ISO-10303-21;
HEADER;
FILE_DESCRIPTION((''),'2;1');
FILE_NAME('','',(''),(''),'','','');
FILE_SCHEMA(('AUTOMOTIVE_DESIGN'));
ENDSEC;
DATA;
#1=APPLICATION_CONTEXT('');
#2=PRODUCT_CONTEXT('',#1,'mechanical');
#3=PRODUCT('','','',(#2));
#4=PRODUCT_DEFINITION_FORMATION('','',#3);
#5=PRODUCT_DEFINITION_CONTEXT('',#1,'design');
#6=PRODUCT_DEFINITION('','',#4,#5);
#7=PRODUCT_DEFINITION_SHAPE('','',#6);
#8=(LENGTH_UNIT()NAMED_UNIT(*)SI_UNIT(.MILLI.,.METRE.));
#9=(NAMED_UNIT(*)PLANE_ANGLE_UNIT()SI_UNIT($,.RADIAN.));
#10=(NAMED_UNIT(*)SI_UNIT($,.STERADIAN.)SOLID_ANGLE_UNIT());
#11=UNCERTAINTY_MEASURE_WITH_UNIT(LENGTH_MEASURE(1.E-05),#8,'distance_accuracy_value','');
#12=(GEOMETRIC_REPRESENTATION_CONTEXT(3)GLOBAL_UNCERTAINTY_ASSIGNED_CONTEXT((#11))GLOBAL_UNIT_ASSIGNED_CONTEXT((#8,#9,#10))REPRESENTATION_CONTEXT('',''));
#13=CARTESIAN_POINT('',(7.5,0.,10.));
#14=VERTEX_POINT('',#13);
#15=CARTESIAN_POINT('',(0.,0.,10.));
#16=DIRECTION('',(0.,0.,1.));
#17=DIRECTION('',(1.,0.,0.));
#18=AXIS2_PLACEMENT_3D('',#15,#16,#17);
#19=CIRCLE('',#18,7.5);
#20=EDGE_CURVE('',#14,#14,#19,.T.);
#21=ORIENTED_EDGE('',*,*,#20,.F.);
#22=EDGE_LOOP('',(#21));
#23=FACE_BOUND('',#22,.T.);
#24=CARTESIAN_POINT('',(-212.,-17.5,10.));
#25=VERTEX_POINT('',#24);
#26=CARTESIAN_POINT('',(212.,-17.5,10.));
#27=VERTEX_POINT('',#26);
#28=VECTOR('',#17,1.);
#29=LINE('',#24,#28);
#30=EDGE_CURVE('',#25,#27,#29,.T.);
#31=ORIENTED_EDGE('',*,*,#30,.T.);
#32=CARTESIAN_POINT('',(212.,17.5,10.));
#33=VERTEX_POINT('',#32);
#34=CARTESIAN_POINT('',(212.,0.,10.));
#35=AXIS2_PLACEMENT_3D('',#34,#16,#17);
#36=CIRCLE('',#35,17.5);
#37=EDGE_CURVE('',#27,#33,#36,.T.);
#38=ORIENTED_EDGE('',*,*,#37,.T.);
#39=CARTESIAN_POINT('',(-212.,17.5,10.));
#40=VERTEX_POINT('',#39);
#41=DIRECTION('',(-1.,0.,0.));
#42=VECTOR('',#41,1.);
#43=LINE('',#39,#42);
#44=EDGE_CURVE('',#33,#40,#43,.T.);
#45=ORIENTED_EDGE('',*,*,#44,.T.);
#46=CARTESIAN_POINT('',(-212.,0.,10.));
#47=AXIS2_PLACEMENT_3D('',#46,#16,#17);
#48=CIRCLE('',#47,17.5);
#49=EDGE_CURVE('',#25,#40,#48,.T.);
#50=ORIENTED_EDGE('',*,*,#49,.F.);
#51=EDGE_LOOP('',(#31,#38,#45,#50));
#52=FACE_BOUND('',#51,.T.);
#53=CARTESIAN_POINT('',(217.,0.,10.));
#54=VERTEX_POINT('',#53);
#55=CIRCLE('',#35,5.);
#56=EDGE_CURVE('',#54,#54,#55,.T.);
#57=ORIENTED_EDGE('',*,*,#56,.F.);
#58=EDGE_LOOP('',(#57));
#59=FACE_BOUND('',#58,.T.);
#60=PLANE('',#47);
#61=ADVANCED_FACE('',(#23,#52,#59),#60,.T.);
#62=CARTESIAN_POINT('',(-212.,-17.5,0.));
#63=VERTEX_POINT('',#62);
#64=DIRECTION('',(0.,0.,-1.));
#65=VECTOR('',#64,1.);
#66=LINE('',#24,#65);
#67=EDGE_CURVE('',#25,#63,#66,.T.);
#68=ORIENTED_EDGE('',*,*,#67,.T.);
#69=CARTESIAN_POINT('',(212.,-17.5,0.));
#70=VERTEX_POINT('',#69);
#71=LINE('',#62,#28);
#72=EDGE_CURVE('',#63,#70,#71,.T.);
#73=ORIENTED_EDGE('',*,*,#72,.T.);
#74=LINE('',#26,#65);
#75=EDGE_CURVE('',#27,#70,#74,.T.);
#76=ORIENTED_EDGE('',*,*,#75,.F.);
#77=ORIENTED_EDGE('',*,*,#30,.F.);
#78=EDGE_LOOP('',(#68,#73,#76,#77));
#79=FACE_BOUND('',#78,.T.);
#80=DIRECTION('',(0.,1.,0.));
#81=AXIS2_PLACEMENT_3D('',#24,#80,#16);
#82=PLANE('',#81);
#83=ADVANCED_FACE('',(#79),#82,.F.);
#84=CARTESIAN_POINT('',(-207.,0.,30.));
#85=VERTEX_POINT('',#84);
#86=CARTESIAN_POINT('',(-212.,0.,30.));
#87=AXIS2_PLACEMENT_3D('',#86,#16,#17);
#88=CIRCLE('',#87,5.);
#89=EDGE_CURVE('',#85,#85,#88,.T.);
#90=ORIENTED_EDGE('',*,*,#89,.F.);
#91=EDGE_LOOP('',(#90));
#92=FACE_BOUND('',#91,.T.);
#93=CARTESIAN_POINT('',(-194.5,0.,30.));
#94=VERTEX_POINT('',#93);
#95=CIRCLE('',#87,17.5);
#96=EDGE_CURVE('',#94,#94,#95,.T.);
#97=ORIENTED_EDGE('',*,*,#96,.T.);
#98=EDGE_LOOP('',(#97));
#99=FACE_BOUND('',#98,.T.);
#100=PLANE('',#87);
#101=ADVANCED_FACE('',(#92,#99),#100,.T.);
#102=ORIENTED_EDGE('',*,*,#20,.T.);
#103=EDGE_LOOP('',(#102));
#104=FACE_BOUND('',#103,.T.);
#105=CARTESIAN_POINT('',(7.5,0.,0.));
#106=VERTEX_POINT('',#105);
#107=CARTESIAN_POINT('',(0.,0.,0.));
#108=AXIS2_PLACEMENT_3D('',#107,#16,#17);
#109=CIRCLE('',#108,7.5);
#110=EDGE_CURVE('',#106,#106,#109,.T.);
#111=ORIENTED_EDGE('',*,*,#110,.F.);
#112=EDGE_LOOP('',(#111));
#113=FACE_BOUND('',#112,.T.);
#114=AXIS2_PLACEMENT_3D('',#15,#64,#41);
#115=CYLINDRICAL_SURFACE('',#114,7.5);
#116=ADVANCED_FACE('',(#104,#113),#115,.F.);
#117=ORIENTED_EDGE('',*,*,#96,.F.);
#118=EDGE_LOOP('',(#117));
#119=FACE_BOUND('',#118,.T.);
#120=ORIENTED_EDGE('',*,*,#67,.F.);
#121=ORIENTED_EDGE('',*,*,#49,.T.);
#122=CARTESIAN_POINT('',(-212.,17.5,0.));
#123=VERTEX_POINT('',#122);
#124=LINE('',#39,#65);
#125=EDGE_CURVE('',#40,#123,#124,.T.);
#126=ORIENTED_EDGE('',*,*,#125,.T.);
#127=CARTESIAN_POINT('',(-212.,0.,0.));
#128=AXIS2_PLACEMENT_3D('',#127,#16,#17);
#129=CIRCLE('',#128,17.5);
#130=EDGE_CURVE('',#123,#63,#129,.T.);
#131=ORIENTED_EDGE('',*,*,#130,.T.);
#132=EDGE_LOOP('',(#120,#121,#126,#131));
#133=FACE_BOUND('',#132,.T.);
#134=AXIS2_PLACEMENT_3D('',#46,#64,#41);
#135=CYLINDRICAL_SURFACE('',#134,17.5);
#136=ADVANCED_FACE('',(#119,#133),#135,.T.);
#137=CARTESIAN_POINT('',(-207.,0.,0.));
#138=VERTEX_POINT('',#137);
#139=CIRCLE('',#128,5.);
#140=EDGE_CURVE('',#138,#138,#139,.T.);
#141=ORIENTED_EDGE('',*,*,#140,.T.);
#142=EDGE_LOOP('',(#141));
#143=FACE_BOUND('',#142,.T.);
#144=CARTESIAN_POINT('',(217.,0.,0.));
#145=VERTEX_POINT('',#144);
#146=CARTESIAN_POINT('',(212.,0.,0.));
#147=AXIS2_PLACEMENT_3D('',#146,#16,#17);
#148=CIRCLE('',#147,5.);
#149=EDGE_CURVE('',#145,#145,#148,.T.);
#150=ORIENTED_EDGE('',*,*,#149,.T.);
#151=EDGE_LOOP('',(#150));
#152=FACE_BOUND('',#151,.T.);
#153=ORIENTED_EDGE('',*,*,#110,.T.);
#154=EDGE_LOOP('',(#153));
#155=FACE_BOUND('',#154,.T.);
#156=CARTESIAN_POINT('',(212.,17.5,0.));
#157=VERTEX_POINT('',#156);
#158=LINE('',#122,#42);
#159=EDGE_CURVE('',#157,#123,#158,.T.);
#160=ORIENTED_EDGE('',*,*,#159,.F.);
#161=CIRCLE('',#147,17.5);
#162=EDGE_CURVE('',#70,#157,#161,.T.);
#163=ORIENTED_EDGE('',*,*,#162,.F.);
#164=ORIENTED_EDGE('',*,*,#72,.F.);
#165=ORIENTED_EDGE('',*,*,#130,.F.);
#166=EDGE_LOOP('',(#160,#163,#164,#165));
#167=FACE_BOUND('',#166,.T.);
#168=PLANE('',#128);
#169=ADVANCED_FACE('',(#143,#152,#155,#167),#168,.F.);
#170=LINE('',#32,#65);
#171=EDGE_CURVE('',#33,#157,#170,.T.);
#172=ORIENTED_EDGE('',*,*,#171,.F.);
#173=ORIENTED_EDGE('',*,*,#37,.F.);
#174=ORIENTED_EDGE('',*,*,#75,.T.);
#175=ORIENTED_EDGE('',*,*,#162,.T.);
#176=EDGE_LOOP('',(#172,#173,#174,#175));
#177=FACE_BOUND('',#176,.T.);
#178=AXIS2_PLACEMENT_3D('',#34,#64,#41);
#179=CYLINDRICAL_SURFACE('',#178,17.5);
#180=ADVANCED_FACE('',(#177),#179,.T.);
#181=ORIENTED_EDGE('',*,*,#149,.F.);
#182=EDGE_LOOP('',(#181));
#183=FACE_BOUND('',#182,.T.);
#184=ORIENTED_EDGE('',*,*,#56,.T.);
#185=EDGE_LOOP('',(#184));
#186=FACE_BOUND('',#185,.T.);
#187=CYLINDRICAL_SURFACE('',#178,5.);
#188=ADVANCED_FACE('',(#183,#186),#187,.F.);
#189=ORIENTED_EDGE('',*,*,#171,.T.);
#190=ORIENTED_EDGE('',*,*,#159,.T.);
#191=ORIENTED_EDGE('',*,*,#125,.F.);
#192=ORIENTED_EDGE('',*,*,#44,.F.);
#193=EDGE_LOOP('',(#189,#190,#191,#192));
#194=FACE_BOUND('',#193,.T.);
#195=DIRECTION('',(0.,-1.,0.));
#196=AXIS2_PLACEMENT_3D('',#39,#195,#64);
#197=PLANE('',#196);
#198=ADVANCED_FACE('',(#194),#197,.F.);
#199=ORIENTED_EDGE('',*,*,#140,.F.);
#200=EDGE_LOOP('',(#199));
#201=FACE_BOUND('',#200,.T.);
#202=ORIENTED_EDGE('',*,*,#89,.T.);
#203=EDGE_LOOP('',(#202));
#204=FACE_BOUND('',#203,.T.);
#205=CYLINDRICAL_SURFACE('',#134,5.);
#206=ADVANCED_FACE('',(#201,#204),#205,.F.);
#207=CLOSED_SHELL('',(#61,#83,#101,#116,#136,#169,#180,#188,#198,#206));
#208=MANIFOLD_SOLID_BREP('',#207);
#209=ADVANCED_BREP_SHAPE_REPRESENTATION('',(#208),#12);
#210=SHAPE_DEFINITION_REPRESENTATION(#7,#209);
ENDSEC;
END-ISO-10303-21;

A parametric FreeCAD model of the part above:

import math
import FreeCAD as App
import Part
import Sketcher
from FreeCAD import Vector
Q = App.Units.Quantity

doc = App.newDocument("Part")
params = doc.addObject("Spreadsheet::Sheet", "Params")
for row, (alias, value) in enumerate([
    ("sketch1_diameter", "10 mm"),
    ("sketch1_diameter2", "15 mm"),
    ("sketch1_radius", "17.5 mm"),
    ("sketch1_width", "424 mm"),
    ("pad1_length", "10 mm"),
    ("sketch2_diameter", "35 mm"),
    ("sketch2_diameter2", "10 mm"),
    ("pad2_length", "20 mm"),
], start=1):
    params.set(f"A{row}", alias)
    params.set(f"B{row}", "=" + value)
    params.setAlias(f"B{row}", alias)

body = doc.addObject("PartDesign::Body", "Body")

sketch1 = body.newObject("Sketcher::SketchObject", "Sketch")
sketch1.AttachmentSupport = (doc.getObject("XY_Plane"), [""])
sketch1.MapMode = "FlatFace"
sketch1.addGeometry(Part.LineSegment(Vector(212, 18, 0), Vector(-212, 18, 0)), False)
sketch1.addGeometry(Part.ArcOfCircle(Part.Circle(Vector(-212, 0, 0), Vector(0, 0, 1), 18), math.radians(90), math.radians(270)), False)
sketch1.addGeometry(Part.LineSegment(Vector(-212, -18, 0), Vector(212, -18, 0)), False)
sketch1.addGeometry(Part.ArcOfCircle(Part.Circle(Vector(212, 0, 0), Vector(0, 0, 1), 18), math.radians(-90), math.radians(90)), False)
sketch1.addGeometry(Part.Circle(Vector(212, 0, 0), Vector(0, 0, 1), 5), False)
sketch1.addGeometry(Part.Circle(Vector(0, 0, 0), Vector(0, 0, 1), 8), False)
sketch1.addGeometry(Part.Circle(Vector(-212, 0, 0), Vector(0, 0, 1), 5), False)
sketch1.addConstraint(Sketcher.Constraint("Tangent", 0, 2, 1, 1))
sketch1.addConstraint(Sketcher.Constraint("Tangent", 1, 2, 2, 1))
sketch1.addConstraint(Sketcher.Constraint("Tangent", 2, 2, 3, 1))
sketch1.addConstraint(Sketcher.Constraint("Tangent", 3, 2, 0, 1))
sketch1.addConstraint(Sketcher.Constraint("Horizontal", 0))
sketch1.addConstraint(Sketcher.Constraint("Horizontal", 2))
sketch1.addConstraint(Sketcher.Constraint("Coincident", 5, 3, -1, 1))
sketch1.addConstraint(Sketcher.Constraint("Coincident", 4, 3, 3, 3))
sketch1.addConstraint(Sketcher.Constraint("Coincident", 6, 3, 1, 3))
sketch1.addConstraint(Sketcher.Constraint("Equal", 4, 6))
sketch1.addConstraint(Sketcher.Constraint("Symmetric", 1, 3, 3, 3, -1, 1))
sketch1.addConstraint(Sketcher.Constraint("Diameter", 4, Q("10 mm")))
sketch1.addConstraint(Sketcher.Constraint("Diameter", 5, Q("15 mm")))
sketch1.addConstraint(Sketcher.Constraint("Radius", 1, Q("17.5 mm")))
sketch1.addConstraint(Sketcher.Constraint("DistanceX", 0, 2, 0, 1, Q("424 mm")))
sketch1.setExpression("Constraints[11]", "Params.sketch1_diameter")
sketch1.setExpression("Constraints[12]", "Params.sketch1_diameter2")
sketch1.setExpression("Constraints[13]", "Params.sketch1_radius")
sketch1.setExpression("Constraints[14]", "Params.sketch1_width")
pad1 = body.newObject("PartDesign::Pad", "Pad")
pad1.Profile = sketch1
pad1.setExpression("Length", "Params.pad1_length")

sketch2 = body.newObject("Sketcher::SketchObject", "Sketch001")
sketch2.AttachmentSupport = (doc.getObject("XY_Plane"), [""])
sketch2.MapMode = "FlatFace"
sketch2.AttachmentOffset = App.Placement(Vector(0, 0, 10), App.Rotation())
sketch2.addGeometry(Part.Circle(Vector(-212, 0, 0), Vector(0, 0, 1), 18), False)
sketch2.addGeometry(Part.Circle(Vector(-212, 0, 0), Vector(0, 0, 1), 5), False)
sketch2.addConstraint(Sketcher.Constraint("Coincident", 1, 3, 0, 3))
sketch2.addConstraint(Sketcher.Constraint("PointOnObject", 0, 3, -1))
sketch2.addConstraint(Sketcher.Constraint("Diameter", 0, Q("35 mm")))
sketch2.addConstraint(Sketcher.Constraint("Diameter", 1, Q("10 mm")))
sketch2.addConstraint(Sketcher.Constraint("DistanceX", 0, 3, -1, 1, Q("212 mm")))
sketch2.setExpression("Constraints[2]", "Params.sketch2_diameter")
sketch2.setExpression("Constraints[3]", "Params.sketch2_diameter2")
pad2 = body.newObject("PartDesign::Pad", "Pad001")
pad2.Profile = sketch2
pad2.setExpression("Length", "Params.pad2_length")

doc.recompute()
